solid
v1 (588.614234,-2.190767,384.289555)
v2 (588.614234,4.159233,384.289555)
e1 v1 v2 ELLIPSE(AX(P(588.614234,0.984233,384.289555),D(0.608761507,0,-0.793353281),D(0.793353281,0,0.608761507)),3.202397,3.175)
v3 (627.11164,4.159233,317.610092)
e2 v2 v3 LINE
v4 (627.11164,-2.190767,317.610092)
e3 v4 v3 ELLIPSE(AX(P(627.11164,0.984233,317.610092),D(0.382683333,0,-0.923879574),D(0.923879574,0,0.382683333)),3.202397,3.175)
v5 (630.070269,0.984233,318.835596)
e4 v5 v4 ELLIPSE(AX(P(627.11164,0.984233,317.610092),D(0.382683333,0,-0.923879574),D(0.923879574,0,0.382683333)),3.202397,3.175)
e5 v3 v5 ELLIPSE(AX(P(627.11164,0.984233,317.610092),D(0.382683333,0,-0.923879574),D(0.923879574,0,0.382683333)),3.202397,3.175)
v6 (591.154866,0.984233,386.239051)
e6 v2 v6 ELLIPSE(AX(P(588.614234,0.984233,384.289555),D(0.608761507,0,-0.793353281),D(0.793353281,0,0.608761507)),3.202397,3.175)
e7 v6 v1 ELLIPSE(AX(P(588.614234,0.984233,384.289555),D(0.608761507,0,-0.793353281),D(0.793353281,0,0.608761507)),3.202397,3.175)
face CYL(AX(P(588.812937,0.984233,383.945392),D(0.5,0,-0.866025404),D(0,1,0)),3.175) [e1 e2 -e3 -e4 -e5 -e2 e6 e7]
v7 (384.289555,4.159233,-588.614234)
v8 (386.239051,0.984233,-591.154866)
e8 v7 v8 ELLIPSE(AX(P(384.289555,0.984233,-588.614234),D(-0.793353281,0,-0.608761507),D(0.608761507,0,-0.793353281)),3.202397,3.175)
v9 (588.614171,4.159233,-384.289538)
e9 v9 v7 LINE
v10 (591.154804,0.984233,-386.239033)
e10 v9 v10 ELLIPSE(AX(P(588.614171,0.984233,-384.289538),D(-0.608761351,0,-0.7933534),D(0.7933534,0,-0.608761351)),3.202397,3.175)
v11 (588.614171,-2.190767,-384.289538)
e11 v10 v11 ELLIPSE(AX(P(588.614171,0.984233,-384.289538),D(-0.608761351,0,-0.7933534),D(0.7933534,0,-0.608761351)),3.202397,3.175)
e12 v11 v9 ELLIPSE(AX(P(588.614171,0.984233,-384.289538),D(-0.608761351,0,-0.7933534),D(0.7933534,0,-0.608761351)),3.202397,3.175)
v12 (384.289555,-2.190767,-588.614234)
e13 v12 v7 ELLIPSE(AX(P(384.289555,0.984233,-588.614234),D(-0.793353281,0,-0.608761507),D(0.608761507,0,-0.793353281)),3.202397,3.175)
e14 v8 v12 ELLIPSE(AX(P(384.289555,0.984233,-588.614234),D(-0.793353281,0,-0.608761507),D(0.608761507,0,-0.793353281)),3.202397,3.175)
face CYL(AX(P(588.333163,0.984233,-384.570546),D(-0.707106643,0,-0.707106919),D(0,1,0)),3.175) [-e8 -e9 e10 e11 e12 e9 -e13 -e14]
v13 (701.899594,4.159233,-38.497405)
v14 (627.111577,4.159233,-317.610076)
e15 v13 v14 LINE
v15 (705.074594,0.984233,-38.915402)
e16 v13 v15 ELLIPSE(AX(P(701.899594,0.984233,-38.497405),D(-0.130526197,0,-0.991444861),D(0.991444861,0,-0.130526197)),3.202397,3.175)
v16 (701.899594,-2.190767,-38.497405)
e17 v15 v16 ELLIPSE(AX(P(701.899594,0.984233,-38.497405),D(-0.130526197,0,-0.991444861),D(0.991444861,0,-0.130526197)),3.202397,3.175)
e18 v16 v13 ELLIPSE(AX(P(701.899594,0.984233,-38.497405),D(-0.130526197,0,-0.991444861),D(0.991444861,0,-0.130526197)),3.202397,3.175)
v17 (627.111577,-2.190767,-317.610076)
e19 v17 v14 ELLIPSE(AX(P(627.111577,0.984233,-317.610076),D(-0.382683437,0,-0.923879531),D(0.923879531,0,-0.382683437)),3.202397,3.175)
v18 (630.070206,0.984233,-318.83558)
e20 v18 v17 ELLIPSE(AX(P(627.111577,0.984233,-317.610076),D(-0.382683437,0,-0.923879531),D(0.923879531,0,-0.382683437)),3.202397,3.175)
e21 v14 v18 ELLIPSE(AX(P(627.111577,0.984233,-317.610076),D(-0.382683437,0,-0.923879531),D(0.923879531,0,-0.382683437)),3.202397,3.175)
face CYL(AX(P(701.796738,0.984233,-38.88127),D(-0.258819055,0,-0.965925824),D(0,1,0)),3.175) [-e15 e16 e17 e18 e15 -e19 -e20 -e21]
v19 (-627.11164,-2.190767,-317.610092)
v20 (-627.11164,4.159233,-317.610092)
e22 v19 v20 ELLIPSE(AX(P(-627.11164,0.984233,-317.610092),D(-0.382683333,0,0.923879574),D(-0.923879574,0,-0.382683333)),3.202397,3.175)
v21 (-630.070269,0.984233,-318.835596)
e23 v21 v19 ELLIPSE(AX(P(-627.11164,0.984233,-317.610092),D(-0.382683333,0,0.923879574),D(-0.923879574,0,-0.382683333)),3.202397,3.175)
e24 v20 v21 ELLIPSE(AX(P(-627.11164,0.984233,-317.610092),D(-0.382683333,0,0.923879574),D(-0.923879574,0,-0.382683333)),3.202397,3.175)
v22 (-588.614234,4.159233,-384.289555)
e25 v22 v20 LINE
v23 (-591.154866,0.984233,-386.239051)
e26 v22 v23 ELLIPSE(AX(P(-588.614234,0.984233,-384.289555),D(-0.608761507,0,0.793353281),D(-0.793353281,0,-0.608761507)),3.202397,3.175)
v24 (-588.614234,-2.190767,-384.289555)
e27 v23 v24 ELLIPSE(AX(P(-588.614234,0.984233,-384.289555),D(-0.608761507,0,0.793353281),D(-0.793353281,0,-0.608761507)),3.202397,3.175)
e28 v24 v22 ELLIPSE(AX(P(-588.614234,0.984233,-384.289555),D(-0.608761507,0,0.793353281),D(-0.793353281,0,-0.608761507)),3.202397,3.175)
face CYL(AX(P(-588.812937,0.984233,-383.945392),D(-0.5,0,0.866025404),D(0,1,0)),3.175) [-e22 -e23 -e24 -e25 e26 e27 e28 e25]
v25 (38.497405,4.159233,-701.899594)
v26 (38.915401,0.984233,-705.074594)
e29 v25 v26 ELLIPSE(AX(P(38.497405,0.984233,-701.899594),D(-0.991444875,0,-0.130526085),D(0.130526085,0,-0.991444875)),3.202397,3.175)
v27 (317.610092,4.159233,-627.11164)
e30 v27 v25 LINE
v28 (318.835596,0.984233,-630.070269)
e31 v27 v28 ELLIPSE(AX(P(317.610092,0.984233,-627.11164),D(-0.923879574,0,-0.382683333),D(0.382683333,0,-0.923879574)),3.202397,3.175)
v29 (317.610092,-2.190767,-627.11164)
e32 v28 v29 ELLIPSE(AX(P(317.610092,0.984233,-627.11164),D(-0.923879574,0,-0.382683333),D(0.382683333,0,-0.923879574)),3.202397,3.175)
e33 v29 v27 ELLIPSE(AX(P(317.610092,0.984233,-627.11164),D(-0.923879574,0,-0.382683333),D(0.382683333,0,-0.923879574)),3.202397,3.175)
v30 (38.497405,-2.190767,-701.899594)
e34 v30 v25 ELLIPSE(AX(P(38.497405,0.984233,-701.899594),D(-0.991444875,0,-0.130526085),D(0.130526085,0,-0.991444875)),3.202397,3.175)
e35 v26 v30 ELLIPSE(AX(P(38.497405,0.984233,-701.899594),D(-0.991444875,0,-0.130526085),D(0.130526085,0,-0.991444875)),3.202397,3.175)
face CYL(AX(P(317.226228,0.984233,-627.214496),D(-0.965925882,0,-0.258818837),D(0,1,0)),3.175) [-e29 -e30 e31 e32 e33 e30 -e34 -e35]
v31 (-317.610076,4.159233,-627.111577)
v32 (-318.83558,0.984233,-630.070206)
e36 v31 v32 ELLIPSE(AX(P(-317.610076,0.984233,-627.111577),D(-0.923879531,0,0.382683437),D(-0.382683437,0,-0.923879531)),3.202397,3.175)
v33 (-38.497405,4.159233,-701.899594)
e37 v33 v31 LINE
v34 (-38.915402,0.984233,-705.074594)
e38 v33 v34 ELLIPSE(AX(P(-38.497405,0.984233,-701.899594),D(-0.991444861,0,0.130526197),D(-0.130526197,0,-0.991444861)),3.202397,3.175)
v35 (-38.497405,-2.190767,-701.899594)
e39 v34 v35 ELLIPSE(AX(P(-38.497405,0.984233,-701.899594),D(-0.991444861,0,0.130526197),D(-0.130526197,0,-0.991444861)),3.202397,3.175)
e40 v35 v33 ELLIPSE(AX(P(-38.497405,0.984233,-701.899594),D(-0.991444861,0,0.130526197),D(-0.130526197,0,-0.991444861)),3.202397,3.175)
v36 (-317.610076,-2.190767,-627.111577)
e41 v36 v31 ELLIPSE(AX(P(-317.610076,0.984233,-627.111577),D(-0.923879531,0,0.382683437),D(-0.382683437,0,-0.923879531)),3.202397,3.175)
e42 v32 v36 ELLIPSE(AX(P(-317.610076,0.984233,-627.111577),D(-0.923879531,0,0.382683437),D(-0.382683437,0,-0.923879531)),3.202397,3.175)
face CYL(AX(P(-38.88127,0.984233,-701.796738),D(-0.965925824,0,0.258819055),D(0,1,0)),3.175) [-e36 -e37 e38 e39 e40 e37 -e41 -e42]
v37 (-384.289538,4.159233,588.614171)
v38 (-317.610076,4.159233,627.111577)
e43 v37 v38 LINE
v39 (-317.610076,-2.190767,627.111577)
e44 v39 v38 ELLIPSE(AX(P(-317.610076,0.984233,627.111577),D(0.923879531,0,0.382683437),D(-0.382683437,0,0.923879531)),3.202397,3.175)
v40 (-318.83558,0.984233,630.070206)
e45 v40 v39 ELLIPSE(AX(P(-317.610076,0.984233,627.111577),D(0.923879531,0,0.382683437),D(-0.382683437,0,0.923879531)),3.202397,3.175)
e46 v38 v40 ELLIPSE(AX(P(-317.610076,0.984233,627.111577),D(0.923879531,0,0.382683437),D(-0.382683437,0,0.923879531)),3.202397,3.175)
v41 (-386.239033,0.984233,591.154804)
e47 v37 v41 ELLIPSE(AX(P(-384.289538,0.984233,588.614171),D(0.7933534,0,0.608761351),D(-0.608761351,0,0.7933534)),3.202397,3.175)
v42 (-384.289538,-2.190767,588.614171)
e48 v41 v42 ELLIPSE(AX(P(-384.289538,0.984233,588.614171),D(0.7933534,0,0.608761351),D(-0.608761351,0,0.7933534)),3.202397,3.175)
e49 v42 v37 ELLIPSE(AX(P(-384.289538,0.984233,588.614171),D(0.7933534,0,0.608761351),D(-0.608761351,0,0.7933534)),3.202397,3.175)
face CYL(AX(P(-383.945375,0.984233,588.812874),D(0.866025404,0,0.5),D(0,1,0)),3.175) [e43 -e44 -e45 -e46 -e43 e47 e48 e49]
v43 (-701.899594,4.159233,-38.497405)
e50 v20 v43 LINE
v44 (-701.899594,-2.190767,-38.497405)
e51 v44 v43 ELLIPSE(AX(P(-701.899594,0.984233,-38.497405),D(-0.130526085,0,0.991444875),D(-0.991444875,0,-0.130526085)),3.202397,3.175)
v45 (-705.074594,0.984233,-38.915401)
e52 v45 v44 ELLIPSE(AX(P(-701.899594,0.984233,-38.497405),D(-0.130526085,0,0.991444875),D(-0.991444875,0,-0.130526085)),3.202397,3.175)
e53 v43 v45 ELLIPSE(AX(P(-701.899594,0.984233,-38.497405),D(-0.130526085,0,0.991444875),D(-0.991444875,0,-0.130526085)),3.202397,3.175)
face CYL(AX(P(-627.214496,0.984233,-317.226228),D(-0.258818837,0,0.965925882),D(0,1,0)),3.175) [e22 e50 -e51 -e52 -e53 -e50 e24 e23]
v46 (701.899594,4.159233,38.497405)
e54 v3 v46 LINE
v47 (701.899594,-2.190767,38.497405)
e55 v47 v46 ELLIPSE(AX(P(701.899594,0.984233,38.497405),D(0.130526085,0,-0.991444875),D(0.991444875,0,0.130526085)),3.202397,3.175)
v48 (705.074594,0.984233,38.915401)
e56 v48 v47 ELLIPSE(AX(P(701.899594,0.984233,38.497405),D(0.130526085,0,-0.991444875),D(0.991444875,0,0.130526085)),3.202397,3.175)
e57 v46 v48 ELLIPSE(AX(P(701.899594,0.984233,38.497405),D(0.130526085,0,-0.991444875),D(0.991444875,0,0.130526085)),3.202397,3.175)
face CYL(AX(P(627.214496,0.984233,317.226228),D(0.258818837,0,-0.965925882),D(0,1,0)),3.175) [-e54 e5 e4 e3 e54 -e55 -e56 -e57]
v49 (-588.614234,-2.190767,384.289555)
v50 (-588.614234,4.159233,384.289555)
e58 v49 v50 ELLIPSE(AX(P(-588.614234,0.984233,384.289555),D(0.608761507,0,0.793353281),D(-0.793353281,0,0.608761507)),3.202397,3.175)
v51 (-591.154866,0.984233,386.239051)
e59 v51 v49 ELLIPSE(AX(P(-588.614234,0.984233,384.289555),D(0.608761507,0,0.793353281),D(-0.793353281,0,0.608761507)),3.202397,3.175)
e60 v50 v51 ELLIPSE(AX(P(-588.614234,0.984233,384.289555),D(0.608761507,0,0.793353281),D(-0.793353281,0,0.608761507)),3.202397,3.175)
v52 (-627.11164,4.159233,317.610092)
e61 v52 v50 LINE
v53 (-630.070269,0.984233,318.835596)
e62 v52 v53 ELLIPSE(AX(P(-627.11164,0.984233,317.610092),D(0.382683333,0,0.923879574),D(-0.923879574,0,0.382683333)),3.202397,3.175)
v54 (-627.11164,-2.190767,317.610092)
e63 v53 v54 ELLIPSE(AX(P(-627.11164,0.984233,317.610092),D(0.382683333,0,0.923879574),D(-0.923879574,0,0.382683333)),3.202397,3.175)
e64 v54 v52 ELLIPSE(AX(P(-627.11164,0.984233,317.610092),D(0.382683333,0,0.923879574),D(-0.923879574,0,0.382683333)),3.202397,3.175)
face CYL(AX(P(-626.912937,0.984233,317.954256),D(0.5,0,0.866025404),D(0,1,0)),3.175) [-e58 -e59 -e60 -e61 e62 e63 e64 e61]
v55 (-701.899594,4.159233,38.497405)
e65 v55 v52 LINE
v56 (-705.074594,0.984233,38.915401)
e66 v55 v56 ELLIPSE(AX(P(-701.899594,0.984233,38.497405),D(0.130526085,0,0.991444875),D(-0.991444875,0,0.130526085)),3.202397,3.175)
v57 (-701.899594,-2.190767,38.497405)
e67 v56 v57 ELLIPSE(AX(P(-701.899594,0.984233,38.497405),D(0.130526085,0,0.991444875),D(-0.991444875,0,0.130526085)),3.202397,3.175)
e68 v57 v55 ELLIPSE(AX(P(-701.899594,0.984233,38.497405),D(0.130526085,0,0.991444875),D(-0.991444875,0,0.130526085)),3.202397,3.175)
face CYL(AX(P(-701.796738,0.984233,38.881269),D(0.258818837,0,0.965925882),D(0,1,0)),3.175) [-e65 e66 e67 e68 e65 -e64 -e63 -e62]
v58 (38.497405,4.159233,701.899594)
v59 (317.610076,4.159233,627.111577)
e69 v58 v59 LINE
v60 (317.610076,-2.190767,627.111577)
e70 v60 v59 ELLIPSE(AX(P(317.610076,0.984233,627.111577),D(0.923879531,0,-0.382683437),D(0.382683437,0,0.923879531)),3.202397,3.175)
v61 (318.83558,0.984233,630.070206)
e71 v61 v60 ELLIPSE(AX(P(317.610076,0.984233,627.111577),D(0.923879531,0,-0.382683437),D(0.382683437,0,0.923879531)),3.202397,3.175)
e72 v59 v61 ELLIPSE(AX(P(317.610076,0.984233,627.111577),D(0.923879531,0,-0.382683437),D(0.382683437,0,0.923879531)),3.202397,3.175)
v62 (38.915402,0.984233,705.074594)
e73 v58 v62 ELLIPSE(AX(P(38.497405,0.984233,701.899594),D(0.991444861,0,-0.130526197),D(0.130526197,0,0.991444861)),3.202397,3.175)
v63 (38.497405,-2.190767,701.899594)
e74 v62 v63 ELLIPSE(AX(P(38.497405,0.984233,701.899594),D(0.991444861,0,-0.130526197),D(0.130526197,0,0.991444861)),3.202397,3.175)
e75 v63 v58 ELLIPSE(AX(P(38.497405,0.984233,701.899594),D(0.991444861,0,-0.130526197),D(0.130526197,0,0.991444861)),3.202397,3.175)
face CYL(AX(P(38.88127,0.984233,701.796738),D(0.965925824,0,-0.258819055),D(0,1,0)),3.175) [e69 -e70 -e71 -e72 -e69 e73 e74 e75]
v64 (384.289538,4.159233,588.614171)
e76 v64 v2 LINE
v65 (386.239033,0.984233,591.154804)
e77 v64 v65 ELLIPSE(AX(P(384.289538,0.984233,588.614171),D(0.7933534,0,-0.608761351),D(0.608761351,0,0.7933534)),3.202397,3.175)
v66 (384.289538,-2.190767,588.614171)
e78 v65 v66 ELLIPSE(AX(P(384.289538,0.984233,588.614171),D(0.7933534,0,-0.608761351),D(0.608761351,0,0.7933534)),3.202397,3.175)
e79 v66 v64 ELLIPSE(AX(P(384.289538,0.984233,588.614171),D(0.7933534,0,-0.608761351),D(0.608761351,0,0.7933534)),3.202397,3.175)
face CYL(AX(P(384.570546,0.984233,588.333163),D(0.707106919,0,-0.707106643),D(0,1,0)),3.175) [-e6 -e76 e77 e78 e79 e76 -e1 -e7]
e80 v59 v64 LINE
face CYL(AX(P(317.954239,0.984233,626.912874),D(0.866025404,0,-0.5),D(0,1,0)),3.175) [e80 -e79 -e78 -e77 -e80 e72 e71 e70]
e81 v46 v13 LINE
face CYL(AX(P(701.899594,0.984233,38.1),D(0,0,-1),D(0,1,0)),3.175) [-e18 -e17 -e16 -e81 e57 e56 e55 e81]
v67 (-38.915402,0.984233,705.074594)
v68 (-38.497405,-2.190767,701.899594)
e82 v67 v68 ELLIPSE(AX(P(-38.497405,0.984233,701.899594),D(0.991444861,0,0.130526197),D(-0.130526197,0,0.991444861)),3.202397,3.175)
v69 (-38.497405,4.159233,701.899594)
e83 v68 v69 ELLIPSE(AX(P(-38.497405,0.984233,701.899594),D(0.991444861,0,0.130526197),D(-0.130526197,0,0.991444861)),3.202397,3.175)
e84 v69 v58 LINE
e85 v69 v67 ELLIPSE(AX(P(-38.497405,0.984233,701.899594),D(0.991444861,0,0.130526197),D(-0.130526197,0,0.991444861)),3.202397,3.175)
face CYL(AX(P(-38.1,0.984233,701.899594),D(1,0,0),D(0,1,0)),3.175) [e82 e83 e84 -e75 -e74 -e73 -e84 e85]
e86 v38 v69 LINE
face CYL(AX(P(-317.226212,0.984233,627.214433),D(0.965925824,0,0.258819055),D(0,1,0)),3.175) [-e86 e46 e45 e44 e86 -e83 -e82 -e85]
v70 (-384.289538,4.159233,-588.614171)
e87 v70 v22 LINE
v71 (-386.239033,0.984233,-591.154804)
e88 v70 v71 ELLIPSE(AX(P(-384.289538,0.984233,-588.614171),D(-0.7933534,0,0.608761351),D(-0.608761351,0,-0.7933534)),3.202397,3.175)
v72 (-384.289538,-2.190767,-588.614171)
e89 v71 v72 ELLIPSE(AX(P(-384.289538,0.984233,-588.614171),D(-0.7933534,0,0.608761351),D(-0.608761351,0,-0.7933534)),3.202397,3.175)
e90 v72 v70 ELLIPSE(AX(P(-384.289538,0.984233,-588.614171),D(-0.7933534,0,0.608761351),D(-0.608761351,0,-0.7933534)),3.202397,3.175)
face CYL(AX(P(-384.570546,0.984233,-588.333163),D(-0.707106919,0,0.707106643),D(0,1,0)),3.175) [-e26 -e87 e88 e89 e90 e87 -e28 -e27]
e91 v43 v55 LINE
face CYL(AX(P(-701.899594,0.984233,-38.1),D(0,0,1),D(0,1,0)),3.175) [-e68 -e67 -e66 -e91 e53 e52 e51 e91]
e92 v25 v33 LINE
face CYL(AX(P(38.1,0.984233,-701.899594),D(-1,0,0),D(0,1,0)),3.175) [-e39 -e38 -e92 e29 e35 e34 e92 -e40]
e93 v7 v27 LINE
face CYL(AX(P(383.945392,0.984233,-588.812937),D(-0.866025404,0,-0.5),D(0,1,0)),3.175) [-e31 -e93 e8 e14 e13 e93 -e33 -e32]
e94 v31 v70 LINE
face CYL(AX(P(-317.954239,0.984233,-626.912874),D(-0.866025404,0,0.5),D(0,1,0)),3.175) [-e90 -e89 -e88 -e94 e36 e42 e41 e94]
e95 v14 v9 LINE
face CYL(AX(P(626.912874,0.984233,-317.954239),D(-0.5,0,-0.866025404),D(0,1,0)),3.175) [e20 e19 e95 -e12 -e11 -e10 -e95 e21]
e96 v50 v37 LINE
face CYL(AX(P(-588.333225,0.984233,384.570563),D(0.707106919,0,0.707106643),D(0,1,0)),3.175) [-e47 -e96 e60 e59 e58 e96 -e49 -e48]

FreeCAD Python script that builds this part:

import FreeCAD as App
import Part
import Sketcher

V = App.Vector
Q = App.Units.Quantity

doc = App.newDocument("Part")
params = doc.addObject("Spreadsheet::Sheet", "Params")
for row, (alias, value) in enumerate([
    ("sketch1_diameter", "0.25 in"),
    ("sketch2_width", "3 in"),
    ("sketch2_length", "3 in"),
], start=1):
    params.set(f"A{row}", alias)
    params.set(f"B{row}", "=" + value)
    params.setAlias(f"B{row}", alias)

body = doc.addObject("PartDesign::Body", "Body")

# Sketch on YZ plane
sketch1 = doc.addObject("Sketcher::SketchObject", "Sketch")
body.addObject(sketch1)
sketch1.AttachmentSupport = (doc.YZ_Plane, [""])
sketch1.MapMode = "FlatFace"
sketch1.addGeometry(Part.Circle(V(0.984233, 701.899594, 0), V(0, 0, 1), 3.175), False)
sketch1.addConstraint(Sketcher.Constraint("Diameter", 0, Q("0.25 in")))
sketch1.addConstraint(Sketcher.Constraint("DistanceX", -1, 1, 0, 3, Q("0.984233 mm")))
sketch1.addConstraint(Sketcher.Constraint("DistanceY", -1, 1, 0, 3, Q("701.899594 mm")))
sketch1.setExpression("Constraints[0]", "Params.sketch1_diameter")

# Sketch on XZ plane
sketch2 = doc.addObject("Sketcher::SketchObject", "Sketch001")
body.addObject(sketch2)
sketch2.AttachmentSupport = (doc.XZ_Plane, [""])
sketch2.MapMode = "FlatFace"
sketch2.addGeometry(Part.LineSegment(V(-38.1, 698.881, 0), V(38.1, 698.881, 0)), False)
sketch2.addGeometry(Part.LineSegment(V(38.1, 698.881, 0), V(316.444942, 624.298695, 0)), False)
sketch2.addGeometry(Part.LineSegment(V(316.444942, 624.298695, 0), V(382.436078, 586.198695, 0)), False)
sketch2.addGeometry(Part.LineSegment(V(382.436078, 586.198695, 0), V(586.198757, 382.436094, 0)), False)
sketch2.addGeometry(Part.LineSegment(V(586.198757, 382.436094, 0), V(624.298757, 316.444959, 0)), False)
sketch2.addGeometry(Part.LineSegment(V(624.298757, 316.444959, 0), V(698.881, 38.1, 0)), False)
sketch2.addGeometry(Part.LineSegment(V(698.881, 38.1, 0), V(698.881, -38.1, 0)), False)
sketch2.addGeometry(Part.LineSegment(V(698.881, -38.1, 0), V(624.298695, -316.444942, 0)), False)
sketch2.addGeometry(Part.LineSegment(V(624.298695, -316.444942, 0), V(586.198695, -382.436078, 0)), False)
sketch2.addGeometry(Part.LineSegment(V(586.198695, -382.436078, 0), V(382.436094, -586.198757, 0)), False)
sketch2.addGeometry(Part.LineSegment(V(382.436094, -586.198757, 0), V(316.444959, -624.298757, 0)), False)
sketch2.addGeometry(Part.LineSegment(V(316.444959, -624.298757, 0), V(38.1, -698.881, 0)), False)
sketch2.addGeometry(Part.LineSegment(V(38.1, -698.881, 0), V(-38.1, -698.881, 0)), False)
sketch2.addGeometry(Part.LineSegment(V(-38.1, -698.881, 0), V(-316.444942, -624.298695, 0)), False)
sketch2.addGeometry(Part.LineSegment(V(-316.444942, -624.298695, 0), V(-382.436078, -586.198695, 0)), False)
sketch2.addGeometry(Part.LineSegment(V(-382.436078, -586.198695, 0), V(-586.198757, -382.436094, 0)), False)
sketch2.addGeometry(Part.LineSegment(V(-586.198757, -382.436094, 0), V(-624.298757, -316.444959, 0)), False)
sketch2.addGeometry(Part.LineSegment(V(-624.298757, -316.444959, 0), V(-698.881, -38.1, 0)), False)
sketch2.addGeometry(Part.LineSegment(V(-698.881, -38.1, 0), V(-698.881, 38.1, 0)), False)
sketch2.addGeometry(Part.LineSegment(V(-698.881, 38.1, 0), V(-624.298757, 316.444959, 0)), False)
sketch2.addGeometry(Part.LineSegment(V(-624.298757, 316.444959, 0), V(-586.198757, 382.436094, 0)), False)
sketch2.addGeometry(Part.LineSegment(V(-586.198757, 382.436094, 0), V(-382.436078, 586.198695, 0)), False)
sketch2.addGeometry(Part.LineSegment(V(-382.436078, 586.198695, 0), V(-316.444942, 624.298695, 0)), False)
sketch2.addGeometry(Part.LineSegment(V(-316.444942, 624.298695, 0), V(-38.1, 698.881, 0)), False)
sketch2.addConstraint(Sketcher.Constraint("Coincident", 0, 2, 1, 1))
sketch2.addConstraint(Sketcher.Constraint("Coincident", 1, 2, 2, 1))
sketch2.addConstraint(Sketcher.Constraint("Coincident", 2, 2, 3, 1))
sketch2.addConstraint(Sketcher.Constraint("Coincident", 3, 2, 4, 1))
sketch2.addConstraint(Sketcher.Constraint("Coincident", 4, 2, 5, 1))
sketch2.addConstraint(Sketcher.Constraint("Coincident", 5, 2, 6, 1))
sketch2.addConstraint(Sketcher.Constraint("Coincident", 6, 2, 7, 1))
sketch2.addConstraint(Sketcher.Constraint("Coincident", 7, 2, 8, 1))
sketch2.addConstraint(Sketcher.Constraint("Coincident", 8, 2, 9, 1))
sketch2.addConstraint(Sketcher.Constraint("Coincident", 9, 2, 10, 1))
sketch2.addConstraint(Sketcher.Constraint("Coincident", 10, 2, 11, 1))
sketch2.addConstraint(Sketcher.Constraint("Coincident", 11, 2, 12, 1))
sketch2.addConstraint(Sketcher.Constraint("Coincident", 12, 2, 13, 1))
sketch2.addConstraint(Sketcher.Constraint("Coincident", 13, 2, 14, 1))
sketch2.addConstraint(Sketcher.Constraint("Coincident", 14, 2, 15, 1))
sketch2.addConstraint(Sketcher.Constraint("Coincident", 15, 2, 16, 1))
sketch2.addConstraint(Sketcher.Constraint("Coincident", 16, 2, 17, 1))
sketch2.addConstraint(Sketcher.Constraint("Coincident", 17, 2, 18, 1))
sketch2.addConstraint(Sketcher.Constraint("Coincident", 18, 2, 19, 1))
sketch2.addConstraint(Sketcher.Constraint("Coincident", 19, 2, 20, 1))
sketch2.addConstraint(Sketcher.Constraint("Coincident", 20, 2, 21, 1))
sketch2.addConstraint(Sketcher.Constraint("Coincident", 21, 2, 22, 1))
sketch2.addConstraint(Sketcher.Constraint("Coincident", 22, 2, 23, 1))
sketch2.addConstraint(Sketcher.Constraint("Coincident", 23, 2, 0, 1))
sketch2.addConstraint(Sketcher.Constraint("Horizontal", 0))
sketch2.addConstraint(Sketcher.Constraint("Vertical", 6))
sketch2.addConstraint(Sketcher.Constraint("Horizontal", 12))
sketch2.addConstraint(Sketcher.Constraint("Vertical", 18))
sketch2.addConstraint(Sketcher.Constraint("Symmetric", 0, 2, 12, 2, -1, 1))
sketch2.addConstraint(Sketcher.Constraint("Symmetric", 1, 2, 13, 2, -1, 1))
sketch2.addConstraint(Sketcher.Constraint("Symmetric", 2, 2, 14, 2, -1, 1))
sketch2.addConstraint(Sketcher.Constraint("Symmetric", 3, 2, 15, 2, -1, 1))
sketch2.addConstraint(Sketcher.Constraint("Symmetric", 4, 2, 16, 2, -1, 1))
sketch2.addConstraint(Sketcher.Constraint("Symmetric", 5, 2, 17, 2, -1, 1))
sketch2.addConstraint(Sketcher.Constraint("Symmetric", 4, 2, 19, 2, -2))
sketch2.addConstraint(Sketcher.Constraint("Symmetric", 3, 2, 20, 2, -2))
sketch2.addConstraint(Sketcher.Constraint("Symmetric", 2, 2, 21, 2, -2))
sketch2.addConstraint(Sketcher.Constraint("Symmetric", 1, 2, 22, 2, -2))
sketch2.addConstraint(Sketcher.Constraint("Perpendicular", 1, 7))
sketch2.addConstraint(Sketcher.Constraint("Perpendicular", 2, 8))
sketch2.addConstraint(Sketcher.Constraint("Perpendicular", 3, 9))
sketch2.addConstraint(Sketcher.Constraint("Perpendicular", 4, 10))
sketch2.addConstraint(Sketcher.Constraint("Perpendicular", 5, 11))
sketch2.addConstraint(Sketcher.Constraint("Perpendicular", 13, 19))
sketch2.addConstraint(Sketcher.Constraint("Perpendicular", 14, 20))
sketch2.addConstraint(Sketcher.Constraint("Perpendicular", 15, 21))
sketch2.addConstraint(Sketcher.Constraint("Perpendicular", 17, 23))
sketch2.addConstraint(Sketcher.Constraint("Horizontal", 6, 2, 17, 2))
sketch2.addConstraint(Sketcher.Constraint("Horizontal", 5, 2, 18, 2))
sketch2.addConstraint(Sketcher.Constraint("Vertical", 0, 2, 11, 2))
sketch2.addConstraint(Sketcher.Constraint("Equal", 12, 6))
sketch2.addConstraint(Sketcher.Constraint("Equal", 1, 3))
sketch2.addConstraint(Sketcher.Constraint("Equal", 2, 4))
sketch2.addConstraint(Sketcher.Constraint("Equal", 3, 5))
sketch2.addConstraint(Sketcher.Constraint("Equal", 5, 7))
sketch2.addConstraint(Sketcher.Constraint("Equal", 4, 8))
sketch2.addConstraint(Sketcher.Constraint("Equal", 7, 9))
sketch2.addConstraint(Sketcher.Constraint("DistanceX", 0, 1, 0, 2, Q("3 in")))
sketch2.addConstraint(Sketcher.Constraint("Distance", 2, Q("3 in")))
sketch2.addConstraint(Sketcher.Constraint("Angle", 1, Q("-15.000001 deg")))
sketch2.addConstraint(Sketcher.Constraint("Angle", 2, Q("-30 deg")))
sketch2.addConstraint(Sketcher.Constraint("DistanceY", -1, 1, 0, 2, Q("27.515 in")))
sketch2.setExpression("Constraints[57]", "Params.sketch2_width")
sketch2.setExpression("Constraints[58]", "Params.sketch2_length")
doc.recompute()

additivepipe = doc.addObject("PartDesign::AdditivePipe", "AdditivePipe")
body.addObject(additivepipe)
additivepipe.Profile = sketch1
additivepipe.Spine = (sketch2, ["Edge1", "Edge2", "Edge3", "Edge4", "Edge5", "Edge6", "Edge7", "Edge8", "Edge9", "Edge10", "Edge11", "Edge12", "Edge13", "Edge14", "Edge15", "Edge16", "Edge17", "Edge18", "Edge19", "Edge20", "Edge21", "Edge22", "Edge23", "Edge24"])
additivepipe.Transition = "Right corner"

doc.recompute()
